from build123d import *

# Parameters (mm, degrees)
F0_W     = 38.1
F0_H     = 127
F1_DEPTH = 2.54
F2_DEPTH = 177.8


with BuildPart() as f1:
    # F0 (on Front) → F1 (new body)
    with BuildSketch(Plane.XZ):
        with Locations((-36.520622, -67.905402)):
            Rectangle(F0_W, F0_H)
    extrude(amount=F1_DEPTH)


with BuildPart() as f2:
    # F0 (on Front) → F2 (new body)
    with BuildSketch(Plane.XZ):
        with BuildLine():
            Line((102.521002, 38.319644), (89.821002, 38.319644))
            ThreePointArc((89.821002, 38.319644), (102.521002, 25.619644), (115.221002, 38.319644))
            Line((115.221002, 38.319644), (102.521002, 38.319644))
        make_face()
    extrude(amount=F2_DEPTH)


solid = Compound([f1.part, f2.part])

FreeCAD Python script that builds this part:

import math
import FreeCAD as App
import Part
import Sketcher
from FreeCAD import Vector
Q = App.Units.Quantity

doc = App.newDocument("Part")
body = doc.addObject("PartDesign::Body", "Body")

# Sketch on XZ plane
sketch1 = body.newObject("Sketcher::SketchObject", "Sketch")
sketch1.AttachmentSupport = (doc.getObject("XZ_Plane"), [""])
sketch1.MapMode = "FlatFace"
sketch1.addGeometry([
    Part.LineSegment(Vector(-56, -4, 0), Vector(-56, -131, 0)),
    Part.LineSegment(Vector(-56, -131, 0), Vector(-17, -131, 0)),
    Part.LineSegment(Vector(-17, -131, 0), Vector(-17, -4, 0)),
    Part.LineSegment(Vector(-17, -4, 0), Vector(-56, -4, 0)),
], False)
sketch1.addConstraint([
    Sketcher.Constraint("Coincident", 0, 2, 1, 1),
    Sketcher.Constraint("Coincident", 1, 2, 2, 1),
    Sketcher.Constraint("Coincident", 2, 2, 3, 1),
    Sketcher.Constraint("Coincident", 3, 2, 0, 1),
    Sketcher.Constraint("Vertical", 0),
    Sketcher.Constraint("Horizontal", 1),
    Sketcher.Constraint("Vertical", 2),
    Sketcher.Constraint("Horizontal", 3),
    Sketcher.Constraint("DistanceY", 0, 2, 0, 1, Q("5 in")),
    Sketcher.Constraint("DistanceX", 1, 1, 1, 2, Q("1.5 in")),
    Sketcher.Constraint("DistanceY", 2, 2, -1, 1, 4.405402),
    Sketcher.Constraint("DistanceX", 1, 2, -1, 1, 17.470622),
])
pad1 = body.newObject("PartDesign::Pad", "Pad")
pad1.Profile = sketch1
pad1.Length = Q("0.1 in")
body2 = doc.addObject("PartDesign::Body", "Body001")

# Sketch on XZ plane
sketch2 = body2.newObject("Sketcher::SketchObject", "Sketch001")
sketch2.AttachmentSupport = (doc.getObject("XZ_Plane001"), [""])
sketch2.MapMode = "FlatFace"
sketch2.addGeometry([
    Part.ArcOfCircle(Part.Circle(Vector(103, 38, 0), Vector(0, 0, 1), 13), math.radians(180), math.radians(360)),
    Part.LineSegment(Vector(115, 38, 0), Vector(90, 38, 0)),
], False)
sketch2.addConstraint([
    Sketcher.Constraint("Coincident", 0, 1, 1, 2),
    Sketcher.Constraint("Coincident", 1, 1, 0, 2),
    Sketcher.Constraint("Horizontal", 1),
    Sketcher.Constraint("Radius", 0, Q("0.5 in")),
    Sketcher.Constraint("DistanceX", -1, 1, 0, 3, 102.521002),
    Sketcher.Constraint("DistanceY", -1, 1, 0, 3, 38.319644),
    Sketcher.Constraint("DistanceY", -1, 1, 0, 1, 38.319644),
])
pad2 = body2.newObject("PartDesign::Pad", "Pad001")
pad2.Profile = sketch2
pad2.Length = Q("7 in")

doc.recompute()
